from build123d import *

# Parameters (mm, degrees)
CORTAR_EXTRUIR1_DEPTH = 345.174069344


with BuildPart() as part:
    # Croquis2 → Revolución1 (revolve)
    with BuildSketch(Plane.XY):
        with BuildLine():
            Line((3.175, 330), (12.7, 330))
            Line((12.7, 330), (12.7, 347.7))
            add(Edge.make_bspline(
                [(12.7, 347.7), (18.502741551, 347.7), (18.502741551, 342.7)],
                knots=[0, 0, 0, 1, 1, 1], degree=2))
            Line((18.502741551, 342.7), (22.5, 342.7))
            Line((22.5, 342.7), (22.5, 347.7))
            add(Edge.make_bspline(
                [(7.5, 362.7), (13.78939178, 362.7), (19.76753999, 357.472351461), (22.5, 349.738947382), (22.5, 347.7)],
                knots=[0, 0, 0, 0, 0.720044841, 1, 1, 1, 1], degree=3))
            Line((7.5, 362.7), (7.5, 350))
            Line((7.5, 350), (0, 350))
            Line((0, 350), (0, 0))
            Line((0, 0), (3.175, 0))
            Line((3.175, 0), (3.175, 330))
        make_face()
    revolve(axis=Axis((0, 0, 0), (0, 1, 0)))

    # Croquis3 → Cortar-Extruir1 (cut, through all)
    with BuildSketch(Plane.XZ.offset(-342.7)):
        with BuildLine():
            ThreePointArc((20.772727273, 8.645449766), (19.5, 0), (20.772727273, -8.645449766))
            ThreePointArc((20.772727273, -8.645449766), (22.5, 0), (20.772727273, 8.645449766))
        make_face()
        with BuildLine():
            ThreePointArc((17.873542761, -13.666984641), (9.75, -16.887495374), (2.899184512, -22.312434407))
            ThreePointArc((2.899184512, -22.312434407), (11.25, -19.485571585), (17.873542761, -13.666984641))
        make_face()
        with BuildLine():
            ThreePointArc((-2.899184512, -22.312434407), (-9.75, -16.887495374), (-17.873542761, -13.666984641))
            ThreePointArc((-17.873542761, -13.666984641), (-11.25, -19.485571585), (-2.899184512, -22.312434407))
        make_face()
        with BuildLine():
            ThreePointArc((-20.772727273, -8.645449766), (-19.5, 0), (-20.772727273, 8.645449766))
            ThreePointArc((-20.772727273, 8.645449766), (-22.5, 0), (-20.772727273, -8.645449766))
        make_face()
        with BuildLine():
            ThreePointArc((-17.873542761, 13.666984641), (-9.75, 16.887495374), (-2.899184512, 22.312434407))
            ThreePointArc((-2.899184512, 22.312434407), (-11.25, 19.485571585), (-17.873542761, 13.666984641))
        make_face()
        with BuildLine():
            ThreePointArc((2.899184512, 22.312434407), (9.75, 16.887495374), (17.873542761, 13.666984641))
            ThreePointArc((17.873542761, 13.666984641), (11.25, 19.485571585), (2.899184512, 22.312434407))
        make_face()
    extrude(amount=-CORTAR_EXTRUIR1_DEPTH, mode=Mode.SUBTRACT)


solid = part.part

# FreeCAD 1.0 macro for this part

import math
import FreeCAD as App
import Part
import Sketcher
Q = App.Units.Quantity

doc = App.newDocument("Part")
body = doc.addObject("PartDesign::Body", "Body")

sketch1 = body.newObject("Sketcher::SketchObject", "Sketch")
sketch1.AttachmentSupport = (doc.getObject("XY_Plane"), [""])
sketch1.MapMode = "FlatFace"
sketch1.addGeometry(Part.LineSegment(App.Vector(3.175, 330, 0), App.Vector(12.7, 330, 0)), False)
sketch1.addGeometry(Part.LineSegment(App.Vector(12.7, 330, 0), App.Vector(12.7, 347.7, 0)), False)
sketch1.addGeometry(Part.BSplineCurve([App.Vector(12.7, 347.7, 0), App.Vector(18.502742, 347.7, 0), App.Vector(18.502742, 342.7, 0)], [3, 3], [0, 1], False, 2, [1, 1, 1], False), False)
sketch1.addGeometry(Part.LineSegment(App.Vector(18.502742, 342.7, 0), App.Vector(22.5, 342.7, 0)), False)
sketch1.addGeometry(Part.LineSegment(App.Vector(22.5, 342.7, 0), App.Vector(22.5, 347.7, 0)), False)
sketch1.addGeometry(Part.BSplineCurve([App.Vector(7.5, 362.7, 0), App.Vector(13.789392, 362.7, 0), App.Vector(19.76754, 357.472351, 0), App.Vector(22.5, 349.738947, 0), App.Vector(22.5, 347.7, 0)], [4, 1, 4], [0, 0.720044841, 1], False, 3, [1, 1, 1, 1, 1], False), False)
sketch1.addGeometry(Part.LineSegment(App.Vector(7.5, 362.7, 0), App.Vector(7.5, 350, 0)), False)
sketch1.addGeometry(Part.LineSegment(App.Vector(7.5, 350, 0), App.Vector(0, 350, 0)), False)
sketch1.addGeometry(Part.LineSegment(App.Vector(0, 350, 0), App.Vector(0, 0, 0)), False)
sketch1.addGeometry(Part.LineSegment(App.Vector(0, 0, 0), App.Vector(3.175, 0, 0)), False)
sketch1.addGeometry(Part.LineSegment(App.Vector(3.175, 0, 0), App.Vector(3.175, 330, 0)), False)
sketch1.addConstraint(Sketcher.Constraint("Block", 2))
sketch1.addConstraint(Sketcher.Constraint("Block", 5))
sketch1.addConstraint(Sketcher.Constraint("Coincident", 0, 2, 1, 1))
sketch1.addConstraint(Sketcher.Constraint("Coincident", 1, 2, 2, 1))
sketch1.addConstraint(Sketcher.Constraint("Coincident", 2, 2, 3, 1))
sketch1.addConstraint(Sketcher.Constraint("Coincident", 3, 2, 4, 1))
sketch1.addConstraint(Sketcher.Constraint("Coincident", 4, 2, 5, 2))
sketch1.addConstraint(Sketcher.Constraint("Coincident", 5, 1, 6, 1))
sketch1.addConstraint(Sketcher.Constraint("Coincident", 6, 2, 7, 1))
sketch1.addConstraint(Sketcher.Constraint("Coincident", 7, 2, 8, 1))
sketch1.addConstraint(Sketcher.Constraint("Coincident", 8, 2, 9, 1))
sketch1.addConstraint(Sketcher.Constraint("Coincident", 9, 2, 10, 1))
sketch1.addConstraint(Sketcher.Constraint("Coincident", 10, 2, 0, 1))
sketch1.addConstraint(Sketcher.Constraint("Horizontal", 0))
sketch1.addConstraint(Sketcher.Constraint("Vertical", 1))
sketch1.addConstraint(Sketcher.Constraint("Horizontal", 3))
sketch1.addConstraint(Sketcher.Constraint("Vertical", 4))
sketch1.addConstraint(Sketcher.Constraint("Vertical", 6))
sketch1.addConstraint(Sketcher.Constraint("Horizontal", 7))
sketch1.addConstraint(Sketcher.Constraint("Vertical", 8))
sketch1.addConstraint(Sketcher.Constraint("Horizontal", 9))
sketch1.addConstraint(Sketcher.Constraint("Vertical", 10))
sketch1.addConstraint(Sketcher.Constraint("Coincident", 8, 2, -1, 1))
sketch1.addConstraint(Sketcher.Constraint("DistanceY", 8, 2, 8, 1, Q("350 mm")))
sketch1.addConstraint(Sketcher.Constraint("DistanceY", 10, 1, 10, 2, Q("330 mm")))
sketch1.addConstraint(Sketcher.Constraint("DistanceX", 0, 1, 0, 2, Q("9.525 mm")))
revolution = body.newObject("PartDesign::Revolution", "Revolution")
revolution.Profile = sketch1
revolution.ReferenceAxis = (sketch1, ["V_Axis"])
revolution.Angle = 360

sketch2 = body.newObject("Sketcher::SketchObject", "Sketch001")
sketch2.AttachmentSupport = (doc.getObject("XZ_Plane"), [""])
sketch2.MapMode = "FlatFace"
sketch2.AttachmentOffset = App.Placement(App.Vector(0, 0, -342.7), App.Rotation())
sketch2.addGeometry(Part.ArcOfCircle(Part.Circle(App.Vector(49.5, 0, 0), App.Vector(0, 0, 1), 30), math.radians(163.250874), math.radians(196.749126)), False)
sketch2.addGeometry(Part.ArcOfCircle(Part.Circle(App.Vector(0, 0, 0), App.Vector(0, 0, 1), 22.5), math.radians(-22.596704), math.radians(22.596704)), False)
sketch2.addGeometry(Part.ArcOfCircle(Part.Circle(App.Vector(24.75, -42.868257, 0), App.Vector(0, 0, 1), 30), math.radians(103.250874), math.radians(136.749126)), False)
sketch2.addGeometry(Part.ArcOfCircle(Part.Circle(App.Vector(0, 0, 0), App.Vector(0, 0, 1), 22.5), math.radians(-82.596704), math.radians(-37.403296)), False)
sketch2.addGeometry(Part.ArcOfCircle(Part.Circle(App.Vector(-24.75, -42.868257, 0), App.Vector(0, 0, 1), 30), math.radians(43.250874), math.radians(76.749126)), False)
sketch2.addGeometry(Part.ArcOfCircle(Part.Circle(App.Vector(0, 0, 0), App.Vector(0, 0, 1), 22.5), math.radians(-142.596704), math.radians(-97.403296)), False)
sketch2.addGeometry(Part.ArcOfCircle(Part.Circle(App.Vector(-49.5, 0, 0), App.Vector(0, 0, 1), 30), math.radians(-16.749126), math.radians(16.749126)), False)
sketch2.addGeometry(Part.ArcOfCircle(Part.Circle(App.Vector(0, 0, 0), App.Vector(0, 0, 1), 22.5), math.radians(157.403296), math.radians(202.596704)), False)
sketch2.addGeometry(Part.ArcOfCircle(Part.Circle(App.Vector(-24.75, 42.868257, 0), App.Vector(0, 0, 1), 30), math.radians(-76.749126), math.radians(-43.250874)), False)
sketch2.addGeometry(Part.ArcOfCircle(Part.Circle(App.Vector(0, 0, 0), App.Vector(0, 0, 1), 22.5), math.radians(97.403296), math.radians(142.596704)), False)
sketch2.addGeometry(Part.ArcOfCircle(Part.Circle(App.Vector(24.75, 42.868257, 0), App.Vector(0, 0, 1), 30), math.radians(-136.749126), math.radians(-103.250874)), False)
sketch2.addGeometry(Part.ArcOfCircle(Part.Circle(App.Vector(0, 0, 0), App.Vector(0, 0, 1), 22.5), math.radians(37.403296), math.radians(82.596704)), False)
sketch2.addConstraint(Sketcher.Constraint("Coincident", 0, 1, 1, 2))
sketch2.addConstraint(Sketcher.Constraint("Coincident", 1, 1, 0, 2))
sketch2.addConstraint(Sketcher.Constraint("Coincident", 2, 1, 3, 2))
sketch2.addConstraint(Sketcher.Constraint("Coincident", 3, 1, 2, 2))
sketch2.addConstraint(Sketcher.Constraint("Coincident", 4, 1, 5, 2))
sketch2.addConstraint(Sketcher.Constraint("Coincident", 5, 1, 4, 2))
sketch2.addConstraint(Sketcher.Constraint("Coincident", 6, 1, 7, 2))
sketch2.addConstraint(Sketcher.Constraint("Coincident", 7, 1, 6, 2))
sketch2.addConstraint(Sketcher.Constraint("Coincident", 8, 1, 9, 2))
sketch2.addConstraint(Sketcher.Constraint("Coincident", 9, 1, 8, 2))
sketch2.addConstraint(Sketcher.Constraint("Coincident", 10, 1, 11, 2))
sketch2.addConstraint(Sketcher.Constraint("Coincident", 11, 1, 10, 2))
sketch2.addConstraint(Sketcher.Constraint("Coincident", 1, 3, -1, 1))
sketch2.addConstraint(Sketcher.Constraint("Coincident", 3, 3, -1, 1))
sketch2.addConstraint(Sketcher.Constraint("Coincident", 5, 3, -1, 1))
sketch2.addConstraint(Sketcher.Constraint("Coincident", 7, 3, -1, 1))
sketch2.addConstraint(Sketcher.Constraint("Coincident", 9, 3, -1, 1))
sketch2.addConstraint(Sketcher.Constraint("Coincident", 11, 3, -1, 1))
sketch2.addConstraint(Sketcher.Constraint("Equal", 0, 2))
sketch2.addConstraint(Sketcher.Constraint("Equal", 1, 3))
sketch2.addConstraint(Sketcher.Constraint("Equal", 2, 4))
sketch2.addConstraint(Sketcher.Constraint("Equal", 3, 5))
sketch2.addConstraint(Sketcher.Constraint("Equal", 4, 6))
sketch2.addConstraint(Sketcher.Constraint("Equal", 5, 7))
sketch2.addConstraint(Sketcher.Constraint("Equal", 6, 8))
sketch2.addConstraint(Sketcher.Constraint("Equal", 7, 9))
sketch2.addConstraint(Sketcher.Constraint("Equal", 8, 10))
sketch2.addConstraint(Sketcher.Constraint("Equal", 9, 11))
sketch2.addConstraint(Sketcher.Constraint("Symmetric", 0, 3, 6, 3, -1, 1))
sketch2.addConstraint(Sketcher.Constraint("Symmetric", 2, 3, 8, 3, -1, 1))
sketch2.addConstraint(Sketcher.Constraint("Symmetric", 4, 3, 10, 3, -1, 1))
sketch2.addConstraint(Sketcher.Constraint("Symmetric", 2, 3, 4, 3, -2))
sketch2.addConstraint(Sketcher.Constraint("PointOnObject", 0, 3, -1))
sketch2.addConstraint(Sketcher.Constraint("Radius", 0, Q("30 mm")))
sketch2.addConstraint(Sketcher.Constraint("Radius", 1, Q("22.5 mm")))
sketch2.addConstraint(Sketcher.Constraint("DistanceX", -1, 1, 0, 3, Q("49.5 mm")))
sketch2.addConstraint(Sketcher.Constraint("DistanceX", 4, 3, 2, 3, Q("49.5 mm")))
sketch2.addConstraint(Sketcher.Constraint("DistanceX", 3, 1, 2, 1, Q("14.974358 mm")))
pocket1 = body.newObject("PartDesign::Pocket", "Pocket")
pocket1.Profile = sketch2
pocket1.Type = "ThroughAll"

doc.recompute()
